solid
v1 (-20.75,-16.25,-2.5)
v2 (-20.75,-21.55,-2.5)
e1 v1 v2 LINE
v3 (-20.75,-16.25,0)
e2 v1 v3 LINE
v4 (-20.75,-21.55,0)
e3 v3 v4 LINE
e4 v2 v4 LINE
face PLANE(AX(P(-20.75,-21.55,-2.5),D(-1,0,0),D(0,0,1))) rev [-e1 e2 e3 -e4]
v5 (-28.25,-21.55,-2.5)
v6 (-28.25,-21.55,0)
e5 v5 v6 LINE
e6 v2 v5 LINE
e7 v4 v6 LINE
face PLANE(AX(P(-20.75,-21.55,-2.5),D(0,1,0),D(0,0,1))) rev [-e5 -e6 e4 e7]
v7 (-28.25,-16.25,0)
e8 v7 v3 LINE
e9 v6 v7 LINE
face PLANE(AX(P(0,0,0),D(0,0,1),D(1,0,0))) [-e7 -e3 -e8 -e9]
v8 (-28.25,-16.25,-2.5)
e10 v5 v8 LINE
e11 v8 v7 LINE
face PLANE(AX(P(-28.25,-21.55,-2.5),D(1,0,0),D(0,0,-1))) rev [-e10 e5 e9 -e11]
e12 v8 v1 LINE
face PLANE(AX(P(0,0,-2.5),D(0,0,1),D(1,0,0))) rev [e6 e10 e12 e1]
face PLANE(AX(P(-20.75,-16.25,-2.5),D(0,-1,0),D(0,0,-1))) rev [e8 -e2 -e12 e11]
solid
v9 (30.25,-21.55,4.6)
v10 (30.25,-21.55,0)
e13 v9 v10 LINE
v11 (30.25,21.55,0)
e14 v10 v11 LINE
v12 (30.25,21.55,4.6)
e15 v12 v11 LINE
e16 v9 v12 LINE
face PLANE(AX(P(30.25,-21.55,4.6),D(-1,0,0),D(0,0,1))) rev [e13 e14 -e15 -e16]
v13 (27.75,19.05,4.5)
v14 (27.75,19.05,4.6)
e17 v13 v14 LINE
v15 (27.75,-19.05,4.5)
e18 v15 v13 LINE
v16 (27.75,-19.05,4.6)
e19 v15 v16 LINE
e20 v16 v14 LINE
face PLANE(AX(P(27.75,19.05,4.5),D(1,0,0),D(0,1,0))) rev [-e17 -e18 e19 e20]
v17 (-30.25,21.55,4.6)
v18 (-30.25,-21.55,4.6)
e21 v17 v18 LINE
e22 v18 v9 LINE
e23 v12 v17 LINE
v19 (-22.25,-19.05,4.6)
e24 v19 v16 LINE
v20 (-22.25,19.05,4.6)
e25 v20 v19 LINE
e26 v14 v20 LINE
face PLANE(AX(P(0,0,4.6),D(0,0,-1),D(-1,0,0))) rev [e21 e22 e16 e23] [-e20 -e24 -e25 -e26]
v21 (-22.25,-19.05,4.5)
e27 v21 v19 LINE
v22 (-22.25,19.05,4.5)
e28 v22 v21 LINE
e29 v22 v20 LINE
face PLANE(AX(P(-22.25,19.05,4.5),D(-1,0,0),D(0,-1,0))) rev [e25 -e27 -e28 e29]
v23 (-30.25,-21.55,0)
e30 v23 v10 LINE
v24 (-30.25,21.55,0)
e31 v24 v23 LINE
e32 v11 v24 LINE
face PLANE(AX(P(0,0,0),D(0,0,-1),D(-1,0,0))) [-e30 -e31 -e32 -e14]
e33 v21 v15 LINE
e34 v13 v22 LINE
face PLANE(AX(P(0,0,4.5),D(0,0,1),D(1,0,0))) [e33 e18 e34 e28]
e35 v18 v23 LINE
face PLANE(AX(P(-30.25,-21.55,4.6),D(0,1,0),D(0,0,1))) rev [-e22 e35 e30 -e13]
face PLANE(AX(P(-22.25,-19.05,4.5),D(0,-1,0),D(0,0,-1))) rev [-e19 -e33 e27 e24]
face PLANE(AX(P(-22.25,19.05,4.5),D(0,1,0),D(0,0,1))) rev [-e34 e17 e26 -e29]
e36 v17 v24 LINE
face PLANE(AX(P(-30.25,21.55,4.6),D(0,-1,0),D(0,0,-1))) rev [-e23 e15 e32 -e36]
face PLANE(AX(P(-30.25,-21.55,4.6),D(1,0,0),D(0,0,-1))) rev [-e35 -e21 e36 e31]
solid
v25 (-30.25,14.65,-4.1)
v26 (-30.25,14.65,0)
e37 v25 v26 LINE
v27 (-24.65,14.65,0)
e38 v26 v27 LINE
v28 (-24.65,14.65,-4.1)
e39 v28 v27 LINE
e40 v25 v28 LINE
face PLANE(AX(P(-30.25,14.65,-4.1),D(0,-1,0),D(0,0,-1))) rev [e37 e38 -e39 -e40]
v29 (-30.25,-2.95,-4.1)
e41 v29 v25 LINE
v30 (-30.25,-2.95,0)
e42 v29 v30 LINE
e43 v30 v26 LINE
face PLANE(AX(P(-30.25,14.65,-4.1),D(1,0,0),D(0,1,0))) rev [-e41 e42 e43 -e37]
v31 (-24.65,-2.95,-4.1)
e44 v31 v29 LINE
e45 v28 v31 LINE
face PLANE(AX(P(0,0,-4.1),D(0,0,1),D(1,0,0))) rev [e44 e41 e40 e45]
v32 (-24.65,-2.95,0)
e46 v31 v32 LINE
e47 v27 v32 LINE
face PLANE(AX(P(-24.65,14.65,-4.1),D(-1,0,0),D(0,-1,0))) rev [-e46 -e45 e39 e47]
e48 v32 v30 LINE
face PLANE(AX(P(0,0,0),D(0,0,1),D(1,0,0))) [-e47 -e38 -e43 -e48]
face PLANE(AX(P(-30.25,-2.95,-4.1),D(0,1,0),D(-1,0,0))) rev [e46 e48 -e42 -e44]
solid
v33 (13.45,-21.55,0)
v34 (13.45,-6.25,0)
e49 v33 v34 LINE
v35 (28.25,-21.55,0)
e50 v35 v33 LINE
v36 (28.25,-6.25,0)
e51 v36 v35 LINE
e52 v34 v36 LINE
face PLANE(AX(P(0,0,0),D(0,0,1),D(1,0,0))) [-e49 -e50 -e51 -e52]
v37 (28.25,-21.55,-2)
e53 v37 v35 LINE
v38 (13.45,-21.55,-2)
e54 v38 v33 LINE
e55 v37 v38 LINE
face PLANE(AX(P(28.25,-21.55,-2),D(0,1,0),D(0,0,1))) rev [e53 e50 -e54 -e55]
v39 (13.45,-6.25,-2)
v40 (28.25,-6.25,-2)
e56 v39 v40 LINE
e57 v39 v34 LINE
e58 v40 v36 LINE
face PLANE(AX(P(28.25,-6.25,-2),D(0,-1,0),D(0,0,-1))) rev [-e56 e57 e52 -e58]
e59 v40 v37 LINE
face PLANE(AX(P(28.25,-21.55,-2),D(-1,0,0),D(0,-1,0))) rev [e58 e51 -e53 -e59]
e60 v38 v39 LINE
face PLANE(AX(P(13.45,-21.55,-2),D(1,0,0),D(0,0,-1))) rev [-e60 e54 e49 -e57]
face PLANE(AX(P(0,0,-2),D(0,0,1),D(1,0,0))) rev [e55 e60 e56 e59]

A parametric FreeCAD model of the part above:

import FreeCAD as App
import Part
import Sketcher
from FreeCAD import Vector


def add_polygon(sketch, points):
    """Adds a closed chain of lines whose ends are joined by coincident constraints."""
    first, n = sketch.GeometryCount, len(points)
    for a, b in zip(points, points[1:] + points[:1]):
        sketch.addGeometry(Part.LineSegment(App.Vector(*a, 0), App.Vector(*b, 0)), False)
    for i in range(n):
        sketch.addConstraint(Sketcher.Constraint("Coincident", first + i, 2, first + (i + 1) % n, 1))

doc = App.newDocument("Part")
body = doc.addObject("PartDesign::Body", "Body")

# Sketch on XY plane
sketch1 = doc.addObject("Sketcher::SketchObject", "Sketch")
body.addObject(sketch1)
sketch1.AttachmentSupport = (doc.XY_Plane, [""])
sketch1.MapMode = "FlatFace"
add_polygon(sketch1, [(-30.25, 21.55), (-30.25, -21.55), (30.25, -21.55), (30.25, 21.55)])  # lines 0-3
sketch1.addConstraint([
    Sketcher.Constraint("Vertical", 0),
    Sketcher.Constraint("Horizontal", 1),
    Sketcher.Constraint("Vertical", 2),
    Sketcher.Constraint("Horizontal", 3),
    Sketcher.Constraint("Symmetric", 0, 2, 2, 2, -1, 1),
    Sketcher.Constraint("DistanceX", 1, 1, 1, 2, 60.5),
    Sketcher.Constraint("DistanceY", 0, 2, 0, 1, 43.1),
])
pad1 = doc.addObject("PartDesign::Pad", "Pad")
body.addObject(pad1)
pad1.Profile = sketch1
pad1.Length = 4.6

# Sketch on XY plane
sketch2 = doc.addObject("Sketcher::SketchObject", "Sketch001")
body.addObject(sketch2)
sketch2.AttachmentSupport = (doc.XY_Plane, [""])
sketch2.MapMode = "FlatFace"
sketch2.AttachmentOffset = App.Placement(Vector(0, 0, 4.6), App.Rotation())
add_polygon(sketch2, [(-22.25, 19.05), (-22.25, -19.05), (27.75, -19.05), (27.75, 19.05)])  # lines 0-3
sketch2.addConstraint([
    Sketcher.Constraint("Vertical", 0),
    Sketcher.Constraint("Horizontal", 1),
    Sketcher.Constraint("Vertical", 2),
    Sketcher.Constraint("Horizontal", 3),
    Sketcher.Constraint("DistanceX", 1, 1, 1, 2, 50.0),
    Sketcher.Constraint("DistanceY", 0, 2, 0, 1, 38.1),
    Sketcher.Constraint("DistanceX", 0, 2, -1, 1, 22.25),
    Sketcher.Constraint("DistanceY", 0, 2, -1, 1, 19.05),
])
pocket1 = doc.addObject("PartDesign::Pocket", "Pocket")
body.addObject(pocket1)
pocket1.Profile = sketch2
pocket1.Length = 0.1
body2 = doc.addObject("PartDesign::Body", "Body001")

# Sketch on XY plane
sketch3 = doc.addObject("Sketcher::SketchObject", "Sketch002")
body2.addObject(sketch3)
sketch3.AttachmentSupport = (doc.getObject("XY_Plane001"), [""])
sketch3.MapMode = "FlatFace"
add_polygon(sketch3, [(-20.75, -16.25), (-20.75, -21.55), (-28.25, -21.55), (-28.25, -16.25)])  # lines 0-3
sketch3.addConstraint([
    Sketcher.Constraint("Vertical", 0),
    Sketcher.Constraint("Horizontal", 1),
    Sketcher.Constraint("Vertical", 2),
    Sketcher.Constraint("Horizontal", 3),
    Sketcher.Constraint("DistanceX", 1, 2, 1, 1, 7.5),
    Sketcher.Constraint("DistanceY", 0, 2, 0, 1, 5.3),
    Sketcher.Constraint("DistanceX", 0, 2, -1, 1, 20.75),
    Sketcher.Constraint("DistanceY", 0, 2, -1, 1, 21.55),
])
pad2 = doc.addObject("PartDesign::Pad", "Pad001")
body2.addObject(pad2)
pad2.Profile = sketch3
pad2.Length = 2.5
pad2.Reversed = True
body3 = doc.addObject("PartDesign::Body", "Body002")

# Sketch on XY plane
sketch4 = doc.addObject("Sketcher::SketchObject", "Sketch003")
body3.addObject(sketch4)
sketch4.AttachmentSupport = (doc.getObject("XY_Plane002"), [""])
sketch4.MapMode = "FlatFace"
add_polygon(sketch4, [(-24.65, 14.65), (-24.65, -2.95), (-30.25, -2.95), (-30.25, 14.65)])  # lines 0-3
sketch4.addConstraint([
    Sketcher.Constraint("Vertical", 0),
    Sketcher.Constraint("Horizontal", 1),
    Sketcher.Constraint("Vertical", 2),
    Sketcher.Constraint("Horizontal", 3),
    Sketcher.Constraint("DistanceX", 1, 2, 1, 1, 5.6),
    Sketcher.Constraint("DistanceY", 0, 2, 0, 1, 17.6),
    Sketcher.Constraint("DistanceX", 0, 2, -1, 1, 24.65),
    Sketcher.Constraint("DistanceY", 0, 2, -1, 1, 2.95),
])
pad3 = doc.addObject("PartDesign::Pad", "Pad002")
body3.addObject(pad3)
pad3.Profile = sketch4
pad3.Length = 4.1
pad3.Reversed = True
body4 = doc.addObject("PartDesign::Body", "Body003")

# Sketch on XY plane
sketch5 = doc.addObject("Sketcher::SketchObject", "Sketch004")
body4.addObject(sketch5)
sketch5.AttachmentSupport = (doc.getObject("XY_Plane003"), [""])
sketch5.MapMode = "FlatFace"
add_polygon(sketch5, [(28.25, -6.25), (28.25, -21.55), (13.45, -21.55), (13.45, -6.25)])  # lines 0-3
sketch5.addConstraint([
    Sketcher.Constraint("Vertical", 0),
    Sketcher.Constraint("Horizontal", 1),
    Sketcher.Constraint("Vertical", 2),
    Sketcher.Constraint("Horizontal", 3),
    Sketcher.Constraint("DistanceX", 1, 2, 1, 1, 14.8),
    Sketcher.Constraint("DistanceY", 0, 2, 0, 1, 15.3),
    Sketcher.Constraint("DistanceX", -1, 1, 0, 2, 28.25),
    Sketcher.Constraint("DistanceY", 0, 2, -1, 1, 21.55),
])
pad4 = doc.addObject("PartDesign::Pad", "Pad003")
body4.addObject(pad4)
pad4.Profile = sketch5
pad4.Length = 2
pad4.Reversed = True

doc.recompute()
